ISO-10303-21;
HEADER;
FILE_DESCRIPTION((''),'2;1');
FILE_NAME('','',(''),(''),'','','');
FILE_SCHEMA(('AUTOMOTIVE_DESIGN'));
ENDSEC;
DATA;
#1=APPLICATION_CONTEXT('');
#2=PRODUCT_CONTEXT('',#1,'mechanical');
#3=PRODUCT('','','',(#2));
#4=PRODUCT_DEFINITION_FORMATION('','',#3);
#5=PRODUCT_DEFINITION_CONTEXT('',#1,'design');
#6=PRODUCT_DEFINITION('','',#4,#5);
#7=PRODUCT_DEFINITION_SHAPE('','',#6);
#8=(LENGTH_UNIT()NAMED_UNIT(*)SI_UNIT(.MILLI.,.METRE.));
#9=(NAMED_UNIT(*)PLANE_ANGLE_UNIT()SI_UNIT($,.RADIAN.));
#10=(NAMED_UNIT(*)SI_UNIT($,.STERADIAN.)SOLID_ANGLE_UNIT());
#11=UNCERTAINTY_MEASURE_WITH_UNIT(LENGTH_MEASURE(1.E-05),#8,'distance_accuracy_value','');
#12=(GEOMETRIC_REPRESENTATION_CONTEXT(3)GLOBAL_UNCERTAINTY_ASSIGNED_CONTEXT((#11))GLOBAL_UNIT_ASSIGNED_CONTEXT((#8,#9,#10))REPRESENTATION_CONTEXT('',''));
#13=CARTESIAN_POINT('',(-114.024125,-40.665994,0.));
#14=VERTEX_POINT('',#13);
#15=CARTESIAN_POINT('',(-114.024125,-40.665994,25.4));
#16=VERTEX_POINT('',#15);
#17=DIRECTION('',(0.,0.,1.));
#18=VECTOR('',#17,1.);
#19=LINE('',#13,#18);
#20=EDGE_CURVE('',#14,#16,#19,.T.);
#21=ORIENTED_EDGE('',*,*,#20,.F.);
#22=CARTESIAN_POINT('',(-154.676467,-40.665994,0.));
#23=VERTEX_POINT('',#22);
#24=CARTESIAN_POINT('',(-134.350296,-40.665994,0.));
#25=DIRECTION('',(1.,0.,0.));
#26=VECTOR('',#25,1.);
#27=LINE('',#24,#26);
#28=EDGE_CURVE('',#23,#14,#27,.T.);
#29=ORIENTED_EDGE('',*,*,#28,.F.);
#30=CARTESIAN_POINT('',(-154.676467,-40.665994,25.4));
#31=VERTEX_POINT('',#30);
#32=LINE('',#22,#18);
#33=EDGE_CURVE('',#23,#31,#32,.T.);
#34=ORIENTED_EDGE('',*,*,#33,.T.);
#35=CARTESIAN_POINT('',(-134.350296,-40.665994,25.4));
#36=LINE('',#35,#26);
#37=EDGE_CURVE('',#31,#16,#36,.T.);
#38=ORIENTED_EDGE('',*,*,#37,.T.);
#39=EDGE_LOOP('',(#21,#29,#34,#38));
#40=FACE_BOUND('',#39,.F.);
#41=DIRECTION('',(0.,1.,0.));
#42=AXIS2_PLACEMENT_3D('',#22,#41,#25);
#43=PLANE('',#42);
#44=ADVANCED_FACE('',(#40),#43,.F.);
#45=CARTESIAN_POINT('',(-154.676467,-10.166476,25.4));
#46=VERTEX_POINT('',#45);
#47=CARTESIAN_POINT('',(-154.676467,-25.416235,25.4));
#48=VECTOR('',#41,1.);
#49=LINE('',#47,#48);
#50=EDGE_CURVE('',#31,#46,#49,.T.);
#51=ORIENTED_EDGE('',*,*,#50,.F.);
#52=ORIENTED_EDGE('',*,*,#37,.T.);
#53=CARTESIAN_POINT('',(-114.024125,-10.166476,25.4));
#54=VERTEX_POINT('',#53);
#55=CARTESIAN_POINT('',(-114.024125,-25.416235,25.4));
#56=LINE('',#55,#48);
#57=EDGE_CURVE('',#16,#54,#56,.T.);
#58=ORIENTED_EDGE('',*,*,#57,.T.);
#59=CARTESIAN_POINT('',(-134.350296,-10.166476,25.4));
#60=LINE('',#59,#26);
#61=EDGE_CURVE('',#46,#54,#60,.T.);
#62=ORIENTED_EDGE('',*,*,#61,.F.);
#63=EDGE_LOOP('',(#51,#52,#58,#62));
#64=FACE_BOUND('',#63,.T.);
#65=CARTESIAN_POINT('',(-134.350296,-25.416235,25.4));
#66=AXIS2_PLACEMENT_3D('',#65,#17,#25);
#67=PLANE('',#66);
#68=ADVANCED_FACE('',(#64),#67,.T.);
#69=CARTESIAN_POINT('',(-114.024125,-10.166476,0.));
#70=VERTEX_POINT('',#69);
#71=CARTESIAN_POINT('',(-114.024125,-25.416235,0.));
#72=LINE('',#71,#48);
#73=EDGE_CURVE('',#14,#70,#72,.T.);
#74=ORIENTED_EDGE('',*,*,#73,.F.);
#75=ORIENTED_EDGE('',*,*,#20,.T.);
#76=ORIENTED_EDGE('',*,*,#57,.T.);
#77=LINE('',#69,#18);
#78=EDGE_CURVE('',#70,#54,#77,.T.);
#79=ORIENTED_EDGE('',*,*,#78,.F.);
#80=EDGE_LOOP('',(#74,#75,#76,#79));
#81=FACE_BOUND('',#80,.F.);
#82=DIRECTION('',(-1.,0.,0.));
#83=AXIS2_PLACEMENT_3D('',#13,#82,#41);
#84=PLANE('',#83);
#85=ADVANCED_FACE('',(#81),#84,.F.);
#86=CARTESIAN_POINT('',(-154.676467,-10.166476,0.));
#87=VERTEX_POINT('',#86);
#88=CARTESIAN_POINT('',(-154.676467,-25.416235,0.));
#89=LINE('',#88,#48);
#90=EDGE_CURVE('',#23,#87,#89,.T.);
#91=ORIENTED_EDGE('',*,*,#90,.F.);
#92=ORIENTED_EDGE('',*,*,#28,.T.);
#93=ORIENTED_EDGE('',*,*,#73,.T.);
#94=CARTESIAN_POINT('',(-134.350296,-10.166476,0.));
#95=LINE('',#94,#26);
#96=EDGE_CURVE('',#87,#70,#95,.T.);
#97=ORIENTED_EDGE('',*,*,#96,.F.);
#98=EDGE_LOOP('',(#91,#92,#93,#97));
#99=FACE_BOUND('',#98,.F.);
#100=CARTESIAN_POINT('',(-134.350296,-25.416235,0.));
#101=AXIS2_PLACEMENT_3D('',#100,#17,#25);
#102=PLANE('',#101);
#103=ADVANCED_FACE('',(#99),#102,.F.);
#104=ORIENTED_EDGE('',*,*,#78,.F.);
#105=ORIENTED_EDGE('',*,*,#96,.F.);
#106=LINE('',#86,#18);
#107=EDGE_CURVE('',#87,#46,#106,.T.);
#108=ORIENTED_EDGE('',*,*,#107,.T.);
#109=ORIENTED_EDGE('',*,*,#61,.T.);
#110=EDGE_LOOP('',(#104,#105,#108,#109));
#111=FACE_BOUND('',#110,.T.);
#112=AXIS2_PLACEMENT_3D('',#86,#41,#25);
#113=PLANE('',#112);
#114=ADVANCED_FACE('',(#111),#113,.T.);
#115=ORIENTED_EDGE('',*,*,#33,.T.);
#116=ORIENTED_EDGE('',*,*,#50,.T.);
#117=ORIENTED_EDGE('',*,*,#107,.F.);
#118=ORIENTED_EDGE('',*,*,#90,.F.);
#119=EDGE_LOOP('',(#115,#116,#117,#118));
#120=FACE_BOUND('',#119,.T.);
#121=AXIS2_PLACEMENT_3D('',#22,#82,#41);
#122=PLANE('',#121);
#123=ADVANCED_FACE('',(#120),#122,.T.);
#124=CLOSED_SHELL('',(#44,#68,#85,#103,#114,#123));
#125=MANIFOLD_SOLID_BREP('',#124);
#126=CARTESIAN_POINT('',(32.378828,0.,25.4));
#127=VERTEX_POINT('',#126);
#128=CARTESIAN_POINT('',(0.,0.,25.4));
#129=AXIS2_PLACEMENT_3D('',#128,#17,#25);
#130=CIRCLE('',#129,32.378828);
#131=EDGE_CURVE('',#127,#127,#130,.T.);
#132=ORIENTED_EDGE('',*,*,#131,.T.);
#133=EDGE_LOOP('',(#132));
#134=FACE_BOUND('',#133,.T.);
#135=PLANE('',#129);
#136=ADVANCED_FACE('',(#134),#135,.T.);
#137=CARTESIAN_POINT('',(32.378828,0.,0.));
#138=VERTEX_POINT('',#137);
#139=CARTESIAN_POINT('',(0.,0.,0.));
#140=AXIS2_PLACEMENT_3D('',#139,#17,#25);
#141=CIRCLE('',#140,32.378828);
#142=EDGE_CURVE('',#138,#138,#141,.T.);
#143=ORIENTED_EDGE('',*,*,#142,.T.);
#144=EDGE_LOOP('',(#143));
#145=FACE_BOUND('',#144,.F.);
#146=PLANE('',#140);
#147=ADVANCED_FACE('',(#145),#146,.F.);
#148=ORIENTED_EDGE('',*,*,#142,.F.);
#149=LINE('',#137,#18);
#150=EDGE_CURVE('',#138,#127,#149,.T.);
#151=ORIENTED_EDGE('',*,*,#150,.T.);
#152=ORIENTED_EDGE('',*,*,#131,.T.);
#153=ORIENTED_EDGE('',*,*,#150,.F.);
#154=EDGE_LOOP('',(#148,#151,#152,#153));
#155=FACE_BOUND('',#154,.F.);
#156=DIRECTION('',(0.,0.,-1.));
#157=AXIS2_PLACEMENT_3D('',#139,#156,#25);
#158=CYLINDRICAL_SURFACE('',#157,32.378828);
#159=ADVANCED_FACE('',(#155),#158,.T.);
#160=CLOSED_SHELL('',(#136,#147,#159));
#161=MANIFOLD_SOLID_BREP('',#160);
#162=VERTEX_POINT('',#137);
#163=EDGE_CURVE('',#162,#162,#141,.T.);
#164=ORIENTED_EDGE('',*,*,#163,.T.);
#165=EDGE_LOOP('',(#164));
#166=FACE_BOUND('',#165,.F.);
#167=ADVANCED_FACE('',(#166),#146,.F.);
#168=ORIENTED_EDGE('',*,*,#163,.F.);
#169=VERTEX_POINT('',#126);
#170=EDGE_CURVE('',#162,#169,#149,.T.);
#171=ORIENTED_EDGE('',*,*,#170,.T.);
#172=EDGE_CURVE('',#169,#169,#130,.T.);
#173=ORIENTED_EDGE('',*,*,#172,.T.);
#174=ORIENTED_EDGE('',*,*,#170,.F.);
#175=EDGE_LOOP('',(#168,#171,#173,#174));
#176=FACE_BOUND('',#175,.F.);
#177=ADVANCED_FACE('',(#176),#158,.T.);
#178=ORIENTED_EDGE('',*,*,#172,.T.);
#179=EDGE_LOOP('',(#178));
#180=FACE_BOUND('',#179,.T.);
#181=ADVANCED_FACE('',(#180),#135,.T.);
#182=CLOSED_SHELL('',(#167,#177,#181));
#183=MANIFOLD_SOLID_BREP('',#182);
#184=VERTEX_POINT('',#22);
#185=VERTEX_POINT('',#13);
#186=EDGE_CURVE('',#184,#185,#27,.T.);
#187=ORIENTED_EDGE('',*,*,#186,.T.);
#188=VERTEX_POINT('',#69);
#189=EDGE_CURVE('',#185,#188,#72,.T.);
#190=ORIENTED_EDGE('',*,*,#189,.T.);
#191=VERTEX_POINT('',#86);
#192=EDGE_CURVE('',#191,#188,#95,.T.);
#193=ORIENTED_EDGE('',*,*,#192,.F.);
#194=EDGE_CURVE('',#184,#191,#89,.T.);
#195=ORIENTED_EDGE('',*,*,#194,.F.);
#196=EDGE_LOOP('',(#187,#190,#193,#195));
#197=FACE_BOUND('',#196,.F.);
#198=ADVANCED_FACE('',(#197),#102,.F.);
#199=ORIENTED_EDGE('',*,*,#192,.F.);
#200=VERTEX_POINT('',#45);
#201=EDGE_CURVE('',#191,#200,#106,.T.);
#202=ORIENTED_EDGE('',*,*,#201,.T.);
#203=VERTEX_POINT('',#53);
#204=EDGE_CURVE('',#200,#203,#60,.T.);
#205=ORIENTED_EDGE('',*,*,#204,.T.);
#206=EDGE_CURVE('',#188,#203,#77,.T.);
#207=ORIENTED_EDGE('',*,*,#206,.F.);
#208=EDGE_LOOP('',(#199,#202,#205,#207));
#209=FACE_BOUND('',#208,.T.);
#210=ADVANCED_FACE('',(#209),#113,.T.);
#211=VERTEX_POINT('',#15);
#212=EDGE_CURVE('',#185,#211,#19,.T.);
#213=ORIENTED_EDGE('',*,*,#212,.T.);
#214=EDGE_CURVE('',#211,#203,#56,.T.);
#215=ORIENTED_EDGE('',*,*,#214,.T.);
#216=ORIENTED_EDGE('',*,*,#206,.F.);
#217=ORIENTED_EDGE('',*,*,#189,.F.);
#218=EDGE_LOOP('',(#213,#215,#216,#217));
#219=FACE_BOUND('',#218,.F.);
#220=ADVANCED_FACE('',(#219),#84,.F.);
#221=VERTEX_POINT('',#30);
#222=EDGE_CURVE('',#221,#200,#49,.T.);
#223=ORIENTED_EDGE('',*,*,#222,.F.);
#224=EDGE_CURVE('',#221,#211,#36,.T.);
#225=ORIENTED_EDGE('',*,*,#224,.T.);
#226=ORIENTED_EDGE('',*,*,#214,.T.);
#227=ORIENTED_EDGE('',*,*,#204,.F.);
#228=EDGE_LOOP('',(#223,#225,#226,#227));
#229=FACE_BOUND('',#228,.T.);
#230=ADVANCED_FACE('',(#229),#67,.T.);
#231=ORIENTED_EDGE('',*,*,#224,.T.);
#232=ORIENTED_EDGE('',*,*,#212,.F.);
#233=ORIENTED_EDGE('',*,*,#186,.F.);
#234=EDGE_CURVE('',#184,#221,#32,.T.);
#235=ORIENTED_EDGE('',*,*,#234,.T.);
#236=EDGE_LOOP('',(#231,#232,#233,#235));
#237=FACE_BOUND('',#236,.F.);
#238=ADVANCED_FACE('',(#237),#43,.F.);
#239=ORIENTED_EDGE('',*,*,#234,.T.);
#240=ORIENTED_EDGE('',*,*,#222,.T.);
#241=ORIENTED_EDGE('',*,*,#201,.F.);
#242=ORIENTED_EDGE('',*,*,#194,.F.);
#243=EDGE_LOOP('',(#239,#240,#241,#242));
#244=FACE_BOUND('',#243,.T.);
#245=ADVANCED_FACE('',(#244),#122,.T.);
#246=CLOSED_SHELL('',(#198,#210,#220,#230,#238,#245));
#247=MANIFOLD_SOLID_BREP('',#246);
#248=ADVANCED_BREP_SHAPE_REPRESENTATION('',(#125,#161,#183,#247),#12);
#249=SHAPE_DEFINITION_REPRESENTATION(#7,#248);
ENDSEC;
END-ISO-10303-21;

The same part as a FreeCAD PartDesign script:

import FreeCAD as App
import Part
import Sketcher
Q = App.Units.Quantity

doc = App.newDocument("Part")
params = doc.addObject("Spreadsheet::Sheet", "Params")
for row, (alias, value) in enumerate([
    ("pad1_length", "1 in"),
    ("pad2_length", "1 in"),
], start=1):
    params.set(f"A{row}", alias)
    params.set(f"B{row}", "=" + value)
    params.setAlias(f"B{row}", alias)

body = doc.addObject("PartDesign::Body", "Body")
body.AllowCompound = True

sketch1 = body.newObject("Sketcher::SketchObject", "Sketch")
sketch1.AttachmentSupport = (doc.getObject("XY_Plane"), [""])
sketch1.MapMode = "FlatFace"
sketch1.addGeometry([
    Part.Circle(App.Vector(0, 0, 0), App.Vector(0, 0, 1), 32),
    Part.LineSegment(App.Vector(-155, -10, 0), App.Vector(-155, -41, 0)),
    Part.LineSegment(App.Vector(-155, -41, 0), App.Vector(-114, -41, 0)),
    Part.LineSegment(App.Vector(-114, -41, 0), App.Vector(-114, -10, 0)),
    Part.LineSegment(App.Vector(-114, -10, 0), App.Vector(-155, -10, 0)),
], False)
sketch1.addConstraint([
    Sketcher.Constraint("Coincident", 1, 2, 2, 1),
    Sketcher.Constraint("Coincident", 2, 2, 3, 1),
    Sketcher.Constraint("Coincident", 3, 2, 4, 1),
    Sketcher.Constraint("Coincident", 4, 2, 1, 1),
    Sketcher.Constraint("Vertical", 1),
    Sketcher.Constraint("Horizontal", 2),
    Sketcher.Constraint("Vertical", 3),
    Sketcher.Constraint("Horizontal", 4),
    Sketcher.Constraint("Coincident", 0, 3, -1, 1),
    Sketcher.Constraint("Diameter", 0, Q("64.757656 mm")),
    Sketcher.Constraint("DistanceY", 1, 2, 1, 1, Q("30.499519 mm")),
    Sketcher.Constraint("DistanceX", 2, 1, 2, 2, Q("40.652342 mm")),
    Sketcher.Constraint("DistanceX", 1, 2, -1, 1, Q("154.676467 mm")),
    Sketcher.Constraint("DistanceY", 1, 2, -1, 1, Q("40.665994 mm")),
])
pad1 = body.newObject("PartDesign::Pad", "Pad")
pad1.Profile = sketch1
pad1.setExpression("Length", "Params.pad1_length")
body2 = doc.addObject("PartDesign::Body", "Body001")
body2.AllowCompound = True

sketch2 = body2.newObject("Sketcher::SketchObject", "Sketch001")
sketch2.AttachmentSupport = (doc.getObject("XY_Plane001"), [""])
sketch2.MapMode = "FlatFace"
sketch2.addGeometry([
    Part.Circle(App.Vector(0, 0, 0), App.Vector(0, 0, 1), 32),
    Part.LineSegment(App.Vector(-155, -10, 0), App.Vector(-155, -41, 0)),
    Part.LineSegment(App.Vector(-155, -41, 0), App.Vector(-114, -41, 0)),
    Part.LineSegment(App.Vector(-114, -41, 0), App.Vector(-114, -10, 0)),
    Part.LineSegment(App.Vector(-114, -10, 0), App.Vector(-155, -10, 0)),
], False)
sketch2.addConstraint([
    Sketcher.Constraint("Coincident", 1, 2, 2, 1),
    Sketcher.Constraint("Coincident", 2, 2, 3, 1),
    Sketcher.Constraint("Coincident", 3, 2, 4, 1),
    Sketcher.Constraint("Coincident", 4, 2, 1, 1),
    Sketcher.Constraint("Vertical", 1),
    Sketcher.Constraint("Horizontal", 2),
    Sketcher.Constraint("Vertical", 3),
    Sketcher.Constraint("Horizontal", 4),
    Sketcher.Constraint("Coincident", 0, 3, -1, 1),
    Sketcher.Constraint("Diameter", 0, Q("64.757656 mm")),
    Sketcher.Constraint("DistanceY", 1, 2, 1, 1, Q("30.499519 mm")),
    Sketcher.Constraint("DistanceX", 2, 1, 2, 2, Q("40.652342 mm")),
    Sketcher.Constraint("DistanceX", 1, 2, -1, 1, Q("154.676467 mm")),
    Sketcher.Constraint("DistanceY", 1, 2, -1, 1, Q("40.665994 mm")),
])
pad2 = body2.newObject("PartDesign::Pad", "Pad001")
pad2.Profile = sketch2
pad2.setExpression("Length", "Params.pad2_length")

doc.recompute()
